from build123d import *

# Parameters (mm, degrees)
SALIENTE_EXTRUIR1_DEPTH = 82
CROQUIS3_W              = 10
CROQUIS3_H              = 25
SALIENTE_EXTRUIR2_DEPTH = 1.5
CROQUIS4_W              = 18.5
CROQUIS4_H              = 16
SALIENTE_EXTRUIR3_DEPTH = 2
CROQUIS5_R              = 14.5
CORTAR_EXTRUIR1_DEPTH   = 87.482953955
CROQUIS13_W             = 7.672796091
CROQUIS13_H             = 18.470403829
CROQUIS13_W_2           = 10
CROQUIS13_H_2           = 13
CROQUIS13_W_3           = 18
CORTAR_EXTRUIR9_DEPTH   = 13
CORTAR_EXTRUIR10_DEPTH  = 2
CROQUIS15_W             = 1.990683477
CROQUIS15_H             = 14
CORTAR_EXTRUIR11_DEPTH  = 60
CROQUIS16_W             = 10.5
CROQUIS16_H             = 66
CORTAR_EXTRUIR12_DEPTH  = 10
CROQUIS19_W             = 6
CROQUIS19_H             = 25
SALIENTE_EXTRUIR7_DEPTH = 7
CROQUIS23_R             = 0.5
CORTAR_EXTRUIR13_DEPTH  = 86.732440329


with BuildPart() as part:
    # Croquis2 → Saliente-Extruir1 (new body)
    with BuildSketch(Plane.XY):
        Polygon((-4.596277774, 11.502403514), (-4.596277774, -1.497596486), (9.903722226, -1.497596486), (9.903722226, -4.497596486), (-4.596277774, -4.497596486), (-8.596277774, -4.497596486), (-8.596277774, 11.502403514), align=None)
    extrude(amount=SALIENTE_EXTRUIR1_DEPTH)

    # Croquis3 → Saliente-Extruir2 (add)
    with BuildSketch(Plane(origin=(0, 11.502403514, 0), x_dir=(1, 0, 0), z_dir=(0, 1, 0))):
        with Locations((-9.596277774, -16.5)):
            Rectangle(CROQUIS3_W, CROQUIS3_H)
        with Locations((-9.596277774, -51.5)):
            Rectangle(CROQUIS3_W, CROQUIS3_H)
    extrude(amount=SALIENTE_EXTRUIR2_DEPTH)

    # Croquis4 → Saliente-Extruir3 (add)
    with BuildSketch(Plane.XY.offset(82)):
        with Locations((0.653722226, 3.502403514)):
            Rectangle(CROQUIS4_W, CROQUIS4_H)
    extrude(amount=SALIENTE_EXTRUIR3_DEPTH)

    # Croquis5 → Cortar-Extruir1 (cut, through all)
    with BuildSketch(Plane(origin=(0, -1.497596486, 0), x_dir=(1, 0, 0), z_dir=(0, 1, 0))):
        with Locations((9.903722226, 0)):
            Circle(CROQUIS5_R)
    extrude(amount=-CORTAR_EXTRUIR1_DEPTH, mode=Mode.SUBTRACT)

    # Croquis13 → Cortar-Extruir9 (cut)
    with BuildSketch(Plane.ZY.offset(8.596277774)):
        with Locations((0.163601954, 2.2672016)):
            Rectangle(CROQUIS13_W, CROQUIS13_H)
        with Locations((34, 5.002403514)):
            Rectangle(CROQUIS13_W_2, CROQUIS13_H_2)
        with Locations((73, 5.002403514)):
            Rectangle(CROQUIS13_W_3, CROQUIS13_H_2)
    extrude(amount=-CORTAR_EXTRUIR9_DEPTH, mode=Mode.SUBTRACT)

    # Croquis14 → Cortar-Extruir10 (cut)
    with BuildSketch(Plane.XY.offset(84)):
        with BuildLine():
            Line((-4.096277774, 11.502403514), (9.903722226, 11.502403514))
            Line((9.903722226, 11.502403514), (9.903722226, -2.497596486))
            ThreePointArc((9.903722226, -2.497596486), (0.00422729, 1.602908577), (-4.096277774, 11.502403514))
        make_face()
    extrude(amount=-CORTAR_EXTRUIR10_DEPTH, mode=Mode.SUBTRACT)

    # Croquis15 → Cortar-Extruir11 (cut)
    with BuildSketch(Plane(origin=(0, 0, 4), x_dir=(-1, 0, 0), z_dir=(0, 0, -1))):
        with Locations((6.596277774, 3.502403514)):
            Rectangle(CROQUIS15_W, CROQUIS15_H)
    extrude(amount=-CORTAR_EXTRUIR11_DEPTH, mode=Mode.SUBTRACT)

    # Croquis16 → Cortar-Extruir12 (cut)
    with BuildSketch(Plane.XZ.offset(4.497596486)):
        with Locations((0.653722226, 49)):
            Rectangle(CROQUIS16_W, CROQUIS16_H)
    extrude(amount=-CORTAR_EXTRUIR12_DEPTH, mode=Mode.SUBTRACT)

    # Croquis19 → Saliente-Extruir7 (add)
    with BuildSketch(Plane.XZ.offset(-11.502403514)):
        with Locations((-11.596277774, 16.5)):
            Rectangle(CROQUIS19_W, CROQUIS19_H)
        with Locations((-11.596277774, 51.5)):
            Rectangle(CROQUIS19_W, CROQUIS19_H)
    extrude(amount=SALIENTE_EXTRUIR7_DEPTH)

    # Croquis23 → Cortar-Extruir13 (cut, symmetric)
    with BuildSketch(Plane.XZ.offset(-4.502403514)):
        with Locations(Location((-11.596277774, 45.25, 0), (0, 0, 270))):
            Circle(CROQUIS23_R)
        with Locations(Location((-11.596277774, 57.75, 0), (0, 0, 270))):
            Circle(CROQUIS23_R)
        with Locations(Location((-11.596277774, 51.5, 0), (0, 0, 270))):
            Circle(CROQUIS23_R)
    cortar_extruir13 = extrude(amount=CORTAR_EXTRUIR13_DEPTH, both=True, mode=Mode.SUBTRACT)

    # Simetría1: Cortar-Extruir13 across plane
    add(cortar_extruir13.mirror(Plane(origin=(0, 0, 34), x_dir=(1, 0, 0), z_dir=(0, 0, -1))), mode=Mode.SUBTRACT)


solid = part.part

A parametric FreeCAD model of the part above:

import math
import FreeCAD as App
import Part
import Sketcher


def add_polygon(sketch, points):
    """Adds a closed chain of lines whose ends are joined by coincident constraints."""
    first, n = sketch.GeometryCount, len(points)
    for a, b in zip(points, points[1:] + points[:1]):
        sketch.addGeometry(Part.LineSegment(App.Vector(*a, 0), App.Vector(*b, 0)), False)
    for i in range(n):
        sketch.addConstraint(Sketcher.Constraint("Coincident", first + i, 2, first + (i + 1) % n, 1))

doc = App.newDocument("Part")
body = doc.addObject("PartDesign::Body", "Body")

sketch1 = body.newObject("Sketcher::SketchObject", "Sketch")
sketch1.AttachmentSupport = (doc.getObject("XY_Plane"), [""])
sketch1.MapMode = "FlatFace"
add_polygon(sketch1, [(-4.596278, -1.497596), (-4.596278, 11.502404), (-8.596278, 11.502404), (-8.596278, -4.497596), (9.903722, -4.497596), (9.903722, -1.497596)])
sketch1.addConstraint(Sketcher.Constraint("Vertical", 0))
sketch1.addConstraint(Sketcher.Constraint("Horizontal", 1))
sketch1.addConstraint(Sketcher.Constraint("Vertical", 2))
sketch1.addConstraint(Sketcher.Constraint("Horizontal", 3))
sketch1.addConstraint(Sketcher.Constraint("Vertical", 4))
sketch1.addConstraint(Sketcher.Constraint("Horizontal", 5))
sketch1.addConstraint(Sketcher.Constraint("DistanceX", 1, 2, 1, 1, 4.0))
sketch1.addConstraint(Sketcher.Constraint("DistanceY", 0, 1, 0, 2, 13.0))
sketch1.addConstraint(Sketcher.Constraint("DistanceY", 2, 2, 2, 1, 16.0))
sketch1.addConstraint(Sketcher.Constraint("DistanceX", 3, 1, 3, 2, 18.5))
sketch1.addConstraint(Sketcher.Constraint("DistanceX", 0, 2, -1, 1, 4.596278))
sketch1.addConstraint(Sketcher.Constraint("DistanceY", -1, 1, 0, 2, 11.502404))
pad1 = body.newObject("PartDesign::Pad", "Pad")
pad1.Profile = sketch1
pad1.Length = 82

sketch2 = body.newObject("Sketcher::SketchObject", "Sketch001")
sketch2.AttachmentSupport = (doc.getObject("XZ_Plane"), [""])
sketch2.MapMode = "FlatFace"
sketch2.AttachmentOffset = App.Placement(App.Vector(0, 0, -11.502404), App.Rotation())
add_polygon(sketch2, [(-14.596278, 4), (-14.596278, 29), (-4.596278, 29), (-4.596278, 4)])
add_polygon(sketch2, [(-14.596278, 39), (-14.596278, 64), (-4.596278, 64), (-4.596278, 39)])
sketch2.addConstraint(Sketcher.Constraint("Vertical", 0))
sketch2.addConstraint(Sketcher.Constraint("Horizontal", 1))
sketch2.addConstraint(Sketcher.Constraint("Vertical", 2))
sketch2.addConstraint(Sketcher.Constraint("Horizontal", 3))
sketch2.addConstraint(Sketcher.Constraint("Vertical", 4))
sketch2.addConstraint(Sketcher.Constraint("Horizontal", 5))
sketch2.addConstraint(Sketcher.Constraint("Vertical", 6))
sketch2.addConstraint(Sketcher.Constraint("Horizontal", 7))
sketch2.addConstraint(Sketcher.Constraint("Vertical", 3, 2, 4, 2))
sketch2.addConstraint(Sketcher.Constraint("Vertical", 2, 2, 5, 2))
sketch2.addConstraint(Sketcher.Constraint("Equal", 2, 4))
sketch2.addConstraint(Sketcher.Constraint("DistanceX", 1, 1, 1, 2, 10.0))
sketch2.addConstraint(Sketcher.Constraint("DistanceY", 0, 1, 0, 2, 25.0))
sketch2.addConstraint(Sketcher.Constraint("DistanceY", -1, 1, 0, 2, 29.0))
sketch2.addConstraint(Sketcher.Constraint("DistanceY", -1, 1, 4, 2, 64.0))
sketch2.addConstraint(Sketcher.Constraint("DistanceX", 0, 2, -1, 1, 14.596278))
pad2 = body.newObject("PartDesign::Pad", "Pad001")
pad2.Profile = sketch2
pad2.Length = 1.5
pad2.Reversed = True

sketch3 = body.newObject("Sketcher::SketchObject", "Sketch002")
sketch3.AttachmentSupport = (doc.getObject("XY_Plane"), [""])
sketch3.MapMode = "FlatFace"
sketch3.AttachmentOffset = App.Placement(App.Vector(0, 0, 82), App.Rotation())
add_polygon(sketch3, [(-8.596278, 11.502404), (-8.596278, -4.497596), (9.903722, -4.497596), (9.903722, 11.502404)])
sketch3.addConstraint(Sketcher.Constraint("Vertical", 0))
sketch3.addConstraint(Sketcher.Constraint("Horizontal", 1))
sketch3.addConstraint(Sketcher.Constraint("Vertical", 2))
sketch3.addConstraint(Sketcher.Constraint("Horizontal", 3))
sketch3.addConstraint(Sketcher.Constraint("DistanceY", 0, 2, 0, 1, 16.0))
sketch3.addConstraint(Sketcher.Constraint("DistanceX", 1, 1, 1, 2, 18.5))
sketch3.addConstraint(Sketcher.Constraint("DistanceX", 0, 2, -1, 1, 8.596278))
sketch3.addConstraint(Sketcher.Constraint("DistanceY", 0, 2, -1, 1, 4.497596))
pad3 = body.newObject("PartDesign::Pad", "Pad002")
pad3.Profile = sketch3
pad3.Length = 2

sketch4 = body.newObject("Sketcher::SketchObject", "Sketch003")
sketch4.AttachmentSupport = (doc.getObject("XZ_Plane"), [""])
sketch4.MapMode = "FlatFace"
sketch4.AttachmentOffset = App.Placement(App.Vector(0, 0, 1.497596), App.Rotation())
sketch4.addGeometry(Part.Circle(App.Vector(9.903722, 0, 0), App.Vector(0, 0, 1), 14.5), False)
sketch4.addConstraint(Sketcher.Constraint("PointOnObject", 0, 3, -1))
sketch4.addConstraint(Sketcher.Constraint("Diameter", 0, 29.0))
sketch4.addConstraint(Sketcher.Constraint("DistanceX", -1, 1, 0, 3, 9.903722))
pocket1 = body.newObject("PartDesign::Pocket", "Pocket")
pocket1.Profile = sketch4
pocket1.Type = "ThroughAll"
pocket1.Reversed = True

sketch5 = body.newObject("Sketcher::SketchObject", "Sketch004")
sketch5.AttachmentSupport = (doc.getObject("YZ_Plane"), [""])
sketch5.MapMode = "FlatFace"
sketch5.AttachmentOffset = App.Placement(App.Vector(0, 0, -8.596278), App.Rotation())
add_polygon(sketch5, [(11.502404, -3.672796), (-6.968, -3.672796), (-6.968, 4), (11.502404, 4)])
add_polygon(sketch5, [(11.502404, 29), (-1.497596, 29), (-1.497596, 39), (11.502404, 39)])
add_polygon(sketch5, [(11.502404, 64), (-1.497596, 64), (-1.497596, 82), (11.502404, 82)])
sketch5.addConstraint(Sketcher.Constraint("Horizontal", 0))
sketch5.addConstraint(Sketcher.Constraint("Vertical", 1))
sketch5.addConstraint(Sketcher.Constraint("Horizontal", 2))
sketch5.addConstraint(Sketcher.Constraint("Vertical", 3))
sketch5.addConstraint(Sketcher.Constraint("Horizontal", 4))
sketch5.addConstraint(Sketcher.Constraint("Vertical", 5))
sketch5.addConstraint(Sketcher.Constraint("Horizontal", 6))
sketch5.addConstraint(Sketcher.Constraint("Vertical", 7))
sketch5.addConstraint(Sketcher.Constraint("Horizontal", 8))
sketch5.addConstraint(Sketcher.Constraint("Vertical", 9))
sketch5.addConstraint(Sketcher.Constraint("Horizontal", 10))
sketch5.addConstraint(Sketcher.Constraint("Vertical", 11))
sketch5.addConstraint(Sketcher.Constraint("Vertical", 3, 2, 6, 2))
sketch5.addConstraint(Sketcher.Constraint("Vertical", 5, 2, 8, 2))
sketch5.addConstraint(Sketcher.Constraint("Vertical", 7, 2, 10, 2))
sketch5.addConstraint(Sketcher.Constraint("DistanceX", 4, 2, 4, 1, 13.0))
sketch5.addConstraint(Sketcher.Constraint("DistanceY", 5, 1, 5, 2, 10.0))
sketch5.addConstraint(Sketcher.Constraint("DistanceY", 9, 1, 9, 2, 18.0))
sketch5.addConstraint(Sketcher.Constraint("DistanceY", -1, 1, 1, 2, 4.0))
sketch5.addConstraint(Sketcher.Constraint("DistanceY", -1, 1, 4, 2, 29.0))
sketch5.addConstraint(Sketcher.Constraint("DistanceY", -1, 1, 8, 2, 64.0))
sketch5.addConstraint(Sketcher.Constraint("DistanceX", 0, 2, -1, 1, 6.968))
sketch5.addConstraint(Sketcher.Constraint("DistanceX", 0, 2, 0, 1, 18.470404))
sketch5.addConstraint(Sketcher.Constraint("DistanceY", 1, 1, 1, 2, 7.672796))
pocket2 = body.newObject("PartDesign::Pocket", "Pocket001")
pocket2.Profile = sketch5
pocket2.Length = 13
pocket2.Reversed = True

sketch6 = body.newObject("Sketcher::SketchObject", "Sketch005")
sketch6.AttachmentSupport = (doc.getObject("XY_Plane"), [""])
sketch6.MapMode = "FlatFace"
sketch6.AttachmentOffset = App.Placement(App.Vector(0, 0, 84), App.Rotation())
sketch6.addGeometry(Part.LineSegment(App.Vector(9.903722, 11.502404, 0), App.Vector(-4.096278, 11.502404, 0)), False)
sketch6.addGeometry(Part.ArcOfCircle(Part.Circle(App.Vector(9.903722, 11.502404, 0), App.Vector(0, 0, 1), 14), math.radians(180), math.radians(270)), False)
sketch6.addGeometry(Part.LineSegment(App.Vector(9.903722, -2.497596, 0), App.Vector(9.903722, 11.502404, 0)), False)
sketch6.addConstraint(Sketcher.Constraint("Coincident", 0, 2, 1, 1))
sketch6.addConstraint(Sketcher.Constraint("Coincident", 1, 2, 2, 1))
sketch6.addConstraint(Sketcher.Constraint("Coincident", 2, 2, 0, 1))
sketch6.addConstraint(Sketcher.Constraint("Horizontal", 0))
sketch6.addConstraint(Sketcher.Constraint("Vertical", 2))
sketch6.addConstraint(Sketcher.Constraint("Coincident", 2, 2, 1, 3))
sketch6.addConstraint(Sketcher.Constraint("Radius", 1, 14.0))
sketch6.addConstraint(Sketcher.Constraint("DistanceX", -1, 1, 1, 3, 9.903722))
sketch6.addConstraint(Sketcher.Constraint("DistanceY", -1, 1, 1, 3, 11.502404))
pocket3 = body.newObject("PartDesign::Pocket", "Pocket002")
pocket3.Profile = sketch6
pocket3.Length = 2

sketch7 = body.newObject("Sketcher::SketchObject", "Sketch006")
sketch7.AttachmentSupport = (doc.getObject("XY_Plane"), [""])
sketch7.MapMode = "FlatFace"
sketch7.AttachmentOffset = App.Placement(App.Vector(0, 0, 4), App.Rotation())
add_polygon(sketch7, [(-5.600936, 10.502404), (-5.600936, -3.497596), (-7.59162, -3.497596), (-7.59162, 10.502404)])
sketch7.addConstraint(Sketcher.Constraint("Vertical", 0))
sketch7.addConstraint(Sketcher.Constraint("Horizontal", 1))
sketch7.addConstraint(Sketcher.Constraint("Vertical", 2))
sketch7.addConstraint(Sketcher.Constraint("Horizontal", 3))
sketch7.addConstraint(Sketcher.Constraint("DistanceY", 0, 2, 0, 1, 14.0))
sketch7.addConstraint(Sketcher.Constraint("DistanceX", 1, 2, 1, 1, 1.990683))
sketch7.addConstraint(Sketcher.Constraint("DistanceX", 1, 2, -1, 1, 7.59162))
sketch7.addConstraint(Sketcher.Constraint("DistanceY", 0, 2, -1, 1, 3.497596))
pocket4 = body.newObject("PartDesign::Pocket", "Pocket003")
pocket4.Profile = sketch7
pocket4.Length = 60
pocket4.Reversed = True

sketch8 = body.newObject("Sketcher::SketchObject", "Sketch007")
sketch8.AttachmentSupport = (doc.getObject("XZ_Plane"), [""])
sketch8.MapMode = "FlatFace"
sketch8.AttachmentOffset = App.Placement(App.Vector(0, 0, 4.497596), App.Rotation())
add_polygon(sketch8, [(-4.596278, 82), (-4.596278, 16), (5.903722, 16), (5.903722, 82)])
sketch8.addConstraint(Sketcher.Constraint("Vertical", 0))
sketch8.addConstraint(Sketcher.Constraint("Horizontal", 1))
sketch8.addConstraint(Sketcher.Constraint("Vertical", 2))
sketch8.addConstraint(Sketcher.Constraint("Horizontal", 3))
sketch8.addConstraint(Sketcher.Constraint("DistanceY", 0, 2, 0, 1, 66.0))
sketch8.addConstraint(Sketcher.Constraint("DistanceX", 1, 1, 1, 2, 10.5))
sketch8.addConstraint(Sketcher.Constraint("DistanceY", -1, 1, 0, 2, 16.0))
sketch8.addConstraint(Sketcher.Constraint("DistanceX", 0, 2, -1, 1, 4.596278))
pocket5 = body.newObject("PartDesign::Pocket", "Pocket004")
pocket5.Profile = sketch8
pocket5.Length = 10

sketch9 = body.newObject("Sketcher::SketchObject", "Sketch008")
sketch9.AttachmentSupport = (doc.getObject("XZ_Plane"), [""])
sketch9.MapMode = "FlatFace"
sketch9.AttachmentOffset = App.Placement(App.Vector(0, 0, -11.502404), App.Rotation())
add_polygon(sketch9, [(-14.596278, 29), (-14.596278, 4), (-8.596278, 4), (-8.596278, 29)])
add_polygon(sketch9, [(-14.596278, 64), (-14.596278, 39), (-8.596278, 39), (-8.596278, 64)])
sketch9.addConstraint(Sketcher.Constraint("Vertical", 0))
sketch9.addConstraint(Sketcher.Constraint("Horizontal", 1))
sketch9.addConstraint(Sketcher.Constraint("Vertical", 2))
sketch9.addConstraint(Sketcher.Constraint("Horizontal", 3))
sketch9.addConstraint(Sketcher.Constraint("Vertical", 4))
sketch9.addConstraint(Sketcher.Constraint("Horizontal", 5))
sketch9.addConstraint(Sketcher.Constraint("Vertical", 6))
sketch9.addConstraint(Sketcher.Constraint("Horizontal", 7))
sketch9.addConstraint(Sketcher.Constraint("Vertical", 3, 2, 4, 2))
sketch9.addConstraint(Sketcher.Constraint("Vertical", 2, 2, 5, 2))
sketch9.addConstraint(Sketcher.Constraint("Equal", 2, 4))
sketch9.addConstraint(Sketcher.Constraint("DistanceX", 1, 1, 1, 2, 6.0))
sketch9.addConstraint(Sketcher.Constraint("DistanceY", 0, 2, 0, 1, 25.0))
sketch9.addConstraint(Sketcher.Constraint("DistanceY", -1, 1, 0, 2, 4.0))
sketch9.addConstraint(Sketcher.Constraint("DistanceY", -1, 1, 4, 2, 39.0))
sketch9.addConstraint(Sketcher.Constraint("DistanceX", 0, 2, -1, 1, 14.596278))
pad4 = body.newObject("PartDesign::Pad", "Pad003")
pad4.Profile = sketch9
pad4.Length = 7

sketch10 = body.newObject("Sketcher::SketchObject", "Sketch009")
sketch10.AttachmentSupport = (doc.getObject("XZ_Plane"), [""])
sketch10.MapMode = "FlatFace"
sketch10.AttachmentOffset = App.Placement(App.Vector(0, 0, -4.502404), App.Rotation())
sketch10.addGeometry(Part.Circle(App.Vector(-11.596278, 45.25, 0), App.Vector(0, 0, 1), 0.5), False)
sketch10.addGeometry(Part.Circle(App.Vector(-11.596278, 57.75, 0), App.Vector(0, 0, 1), 0.5), False)
sketch10.addGeometry(Part.Circle(App.Vector(-11.596278, 51.5, 0), App.Vector(0, 0, 1), 0.5), False)
sketch10.addConstraint(Sketcher.Constraint("Equal", 0, 1))
sketch10.addConstraint(Sketcher.Constraint("Equal", 1, 2))
sketch10.addConstraint(Sketcher.Constraint("Vertical", 0, 3, 1, 3))
sketch10.addConstraint(Sketcher.Constraint("Vertical", 1, 3, 2, 3))
sketch10.addConstraint(Sketcher.Constraint("Diameter", 0, 1.0))
sketch10.addConstraint(Sketcher.Constraint("DistanceY", -1, 1, 2, 3, 51.5))
sketch10.addConstraint(Sketcher.Constraint("DistanceY", 0, 3, 1, 3, 12.5))
sketch10.addConstraint(Sketcher.Constraint("DistanceY", -1, 1, 0, 3, 45.25))
sketch10.addConstraint(Sketcher.Constraint("DistanceX", 0, 3, -1, 1, 11.596278))
pocket6 = body.newObject("PartDesign::Pocket", "Pocket005")
pocket6.Profile = sketch10
pocket6.Length = 173.464881
pocket6.Midplane = True
doc.recompute()

datumplane = body.newObject("PartDesign::Plane", "DatumPlane")
datumplane.AttachmentSupport = (doc.getObject("XY_Plane"), [""])
datumplane.MapMode = "FlatFace"
datumplane.AttachmentOffset = App.Placement(App.Vector(0, 0, 34), App.Rotation())
mirrored = body.newObject("PartDesign::Mirrored", "Mirrored")
mirrored.Originals = [pocket6]
mirrored.MirrorPlane = (datumplane, [""])
body.Tip = mirrored

doc.recompute()
